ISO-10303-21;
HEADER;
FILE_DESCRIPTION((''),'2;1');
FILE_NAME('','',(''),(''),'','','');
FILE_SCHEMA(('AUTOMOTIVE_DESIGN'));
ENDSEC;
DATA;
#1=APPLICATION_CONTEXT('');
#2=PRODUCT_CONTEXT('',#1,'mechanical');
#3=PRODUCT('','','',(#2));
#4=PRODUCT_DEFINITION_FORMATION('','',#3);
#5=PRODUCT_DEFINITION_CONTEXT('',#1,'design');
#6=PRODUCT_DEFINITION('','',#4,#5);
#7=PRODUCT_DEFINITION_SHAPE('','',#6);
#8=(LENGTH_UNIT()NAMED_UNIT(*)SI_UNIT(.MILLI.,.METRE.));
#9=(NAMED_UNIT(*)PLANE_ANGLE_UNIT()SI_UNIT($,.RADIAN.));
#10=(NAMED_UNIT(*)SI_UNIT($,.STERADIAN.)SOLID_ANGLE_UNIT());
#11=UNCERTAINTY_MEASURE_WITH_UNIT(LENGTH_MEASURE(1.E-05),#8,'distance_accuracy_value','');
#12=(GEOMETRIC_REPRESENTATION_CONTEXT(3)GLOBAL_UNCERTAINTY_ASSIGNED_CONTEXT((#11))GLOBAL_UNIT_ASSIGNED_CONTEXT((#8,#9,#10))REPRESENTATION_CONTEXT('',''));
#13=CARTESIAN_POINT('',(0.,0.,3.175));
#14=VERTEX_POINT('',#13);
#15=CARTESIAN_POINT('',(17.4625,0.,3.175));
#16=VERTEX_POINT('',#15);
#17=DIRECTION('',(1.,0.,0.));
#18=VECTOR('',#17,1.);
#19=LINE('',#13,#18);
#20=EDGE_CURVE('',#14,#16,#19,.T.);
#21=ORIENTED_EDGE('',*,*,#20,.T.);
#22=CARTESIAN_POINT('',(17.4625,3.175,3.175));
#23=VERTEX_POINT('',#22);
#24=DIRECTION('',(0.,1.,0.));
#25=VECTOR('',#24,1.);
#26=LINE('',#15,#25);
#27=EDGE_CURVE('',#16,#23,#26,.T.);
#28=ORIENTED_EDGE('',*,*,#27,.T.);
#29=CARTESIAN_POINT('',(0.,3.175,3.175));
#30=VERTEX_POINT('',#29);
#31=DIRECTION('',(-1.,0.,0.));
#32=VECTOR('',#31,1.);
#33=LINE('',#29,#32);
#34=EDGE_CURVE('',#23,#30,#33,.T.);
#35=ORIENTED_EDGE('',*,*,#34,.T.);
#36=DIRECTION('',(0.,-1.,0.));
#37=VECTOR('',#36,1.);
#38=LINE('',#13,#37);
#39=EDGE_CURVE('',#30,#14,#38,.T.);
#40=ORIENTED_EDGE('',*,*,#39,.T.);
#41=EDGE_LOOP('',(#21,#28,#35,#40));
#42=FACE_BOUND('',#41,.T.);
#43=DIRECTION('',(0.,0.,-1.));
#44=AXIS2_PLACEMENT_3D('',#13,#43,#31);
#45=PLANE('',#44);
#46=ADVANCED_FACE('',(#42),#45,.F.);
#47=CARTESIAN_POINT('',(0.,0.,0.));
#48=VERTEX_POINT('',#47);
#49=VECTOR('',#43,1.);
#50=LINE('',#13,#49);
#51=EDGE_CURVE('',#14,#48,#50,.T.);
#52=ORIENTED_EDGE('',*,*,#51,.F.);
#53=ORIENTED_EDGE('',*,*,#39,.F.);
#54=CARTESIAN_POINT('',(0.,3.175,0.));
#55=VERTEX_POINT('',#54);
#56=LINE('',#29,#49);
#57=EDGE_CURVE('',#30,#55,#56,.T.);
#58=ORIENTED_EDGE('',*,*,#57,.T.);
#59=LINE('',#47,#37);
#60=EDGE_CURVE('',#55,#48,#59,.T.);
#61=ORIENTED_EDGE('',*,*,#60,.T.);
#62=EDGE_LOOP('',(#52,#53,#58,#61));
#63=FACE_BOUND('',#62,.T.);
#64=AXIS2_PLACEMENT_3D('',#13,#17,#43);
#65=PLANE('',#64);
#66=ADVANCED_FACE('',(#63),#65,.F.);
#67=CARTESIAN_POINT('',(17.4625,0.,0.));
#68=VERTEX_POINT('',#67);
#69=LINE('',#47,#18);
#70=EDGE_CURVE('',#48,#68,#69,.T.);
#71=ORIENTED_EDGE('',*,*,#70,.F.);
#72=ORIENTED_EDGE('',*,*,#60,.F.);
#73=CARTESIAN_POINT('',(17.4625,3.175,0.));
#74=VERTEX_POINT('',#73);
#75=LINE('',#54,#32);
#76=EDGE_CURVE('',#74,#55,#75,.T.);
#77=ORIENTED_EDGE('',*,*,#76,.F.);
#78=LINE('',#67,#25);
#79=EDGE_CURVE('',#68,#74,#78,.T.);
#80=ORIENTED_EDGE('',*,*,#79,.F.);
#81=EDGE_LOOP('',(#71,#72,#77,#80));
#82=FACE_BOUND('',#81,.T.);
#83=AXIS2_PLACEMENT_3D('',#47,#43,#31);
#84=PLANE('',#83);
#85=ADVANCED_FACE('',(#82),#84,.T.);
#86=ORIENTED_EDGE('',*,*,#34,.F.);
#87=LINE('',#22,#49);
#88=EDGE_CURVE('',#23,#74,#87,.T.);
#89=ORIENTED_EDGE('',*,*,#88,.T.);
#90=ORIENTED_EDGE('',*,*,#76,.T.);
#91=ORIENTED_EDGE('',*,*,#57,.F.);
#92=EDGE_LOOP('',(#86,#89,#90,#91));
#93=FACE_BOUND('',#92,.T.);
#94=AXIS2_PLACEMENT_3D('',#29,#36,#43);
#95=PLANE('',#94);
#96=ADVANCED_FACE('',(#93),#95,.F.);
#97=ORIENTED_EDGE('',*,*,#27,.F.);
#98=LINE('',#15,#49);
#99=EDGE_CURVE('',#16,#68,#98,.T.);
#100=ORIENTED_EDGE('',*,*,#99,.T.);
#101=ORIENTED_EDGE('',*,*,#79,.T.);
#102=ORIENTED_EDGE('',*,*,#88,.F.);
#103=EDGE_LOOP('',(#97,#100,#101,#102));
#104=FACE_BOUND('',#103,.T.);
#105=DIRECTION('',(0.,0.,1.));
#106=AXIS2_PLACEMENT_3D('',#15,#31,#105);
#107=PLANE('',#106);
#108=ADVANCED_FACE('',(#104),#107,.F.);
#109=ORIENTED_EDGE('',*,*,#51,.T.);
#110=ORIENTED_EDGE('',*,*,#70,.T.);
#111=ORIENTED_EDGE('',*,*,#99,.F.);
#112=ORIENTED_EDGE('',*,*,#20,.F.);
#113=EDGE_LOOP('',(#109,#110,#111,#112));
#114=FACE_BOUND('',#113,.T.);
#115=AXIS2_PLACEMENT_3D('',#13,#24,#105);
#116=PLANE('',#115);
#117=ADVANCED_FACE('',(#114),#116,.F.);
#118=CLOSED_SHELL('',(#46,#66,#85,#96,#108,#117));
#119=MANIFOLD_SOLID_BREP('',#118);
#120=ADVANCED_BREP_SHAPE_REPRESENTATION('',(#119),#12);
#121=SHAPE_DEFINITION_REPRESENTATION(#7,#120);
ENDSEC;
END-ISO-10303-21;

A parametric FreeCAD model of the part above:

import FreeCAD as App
import Part
import Sketcher
from FreeCAD import Vector
Q = App.Units.Quantity


def add_polygon(sketch, points):
    """Adds a closed chain of lines whose ends are joined by coincident constraints."""
    first, n = sketch.GeometryCount, len(points)
    for a, b in zip(points, points[1:] + points[:1]):
        sketch.addGeometry(Part.LineSegment(App.Vector(*a, 0), App.Vector(*b, 0)), False)
    for i in range(n):
        sketch.addConstraint(Sketcher.Constraint("Coincident", first + i, 2, first + (i + 1) % n, 1))

doc = App.newDocument("Part")
params = doc.addObject("Spreadsheet::Sheet", "Params")
for row, (alias, value) in enumerate([
    ("sketch1_width", "0.6875 in"),
    ("sketch1_height", "0.125 in"),
    ("pad1_length", "0.125 in"),
], start=1):
    params.set(f"A{row}", alias)
    params.set(f"B{row}", "=" + value)
    params.setAlias(f"B{row}", alias)

body = doc.addObject("PartDesign::Body", "Body")

sketch1 = doc.addObject("Sketcher::SketchObject", "Sketch")
body.addObject(sketch1)
sketch1.AttachmentSupport = (doc.XY_Plane, [""])
sketch1.MapMode = "FlatFace"
add_polygon(sketch1, [(0, 3.2), (0, 0), (17.5, 0), (17.5, 3.2)])
sketch1.addConstraint([
    Sketcher.Constraint("Vertical", 0),
    Sketcher.Constraint("Horizontal", 1),
    Sketcher.Constraint("Vertical", 2),
    Sketcher.Constraint("Horizontal", 3),
    Sketcher.Constraint("Coincident", 0, 2, -1, 1),
    Sketcher.Constraint("DistanceX", 1, 1, 1, 2, Q("0.6875 in")),
    Sketcher.Constraint("DistanceY", 0, 2, 0, 1, Q("0.125 in")),
])
sketch1.setExpression("Constraints[9]", "Params.sketch1_width")
sketch1.setExpression("Constraints[10]", "Params.sketch1_height")
pad1 = doc.addObject("PartDesign::Pad", "Pad")
body.addObject(pad1)
pad1.Profile = sketch1
pad1.setExpression("Length", "Params.pad1_length")

doc.recompute()
